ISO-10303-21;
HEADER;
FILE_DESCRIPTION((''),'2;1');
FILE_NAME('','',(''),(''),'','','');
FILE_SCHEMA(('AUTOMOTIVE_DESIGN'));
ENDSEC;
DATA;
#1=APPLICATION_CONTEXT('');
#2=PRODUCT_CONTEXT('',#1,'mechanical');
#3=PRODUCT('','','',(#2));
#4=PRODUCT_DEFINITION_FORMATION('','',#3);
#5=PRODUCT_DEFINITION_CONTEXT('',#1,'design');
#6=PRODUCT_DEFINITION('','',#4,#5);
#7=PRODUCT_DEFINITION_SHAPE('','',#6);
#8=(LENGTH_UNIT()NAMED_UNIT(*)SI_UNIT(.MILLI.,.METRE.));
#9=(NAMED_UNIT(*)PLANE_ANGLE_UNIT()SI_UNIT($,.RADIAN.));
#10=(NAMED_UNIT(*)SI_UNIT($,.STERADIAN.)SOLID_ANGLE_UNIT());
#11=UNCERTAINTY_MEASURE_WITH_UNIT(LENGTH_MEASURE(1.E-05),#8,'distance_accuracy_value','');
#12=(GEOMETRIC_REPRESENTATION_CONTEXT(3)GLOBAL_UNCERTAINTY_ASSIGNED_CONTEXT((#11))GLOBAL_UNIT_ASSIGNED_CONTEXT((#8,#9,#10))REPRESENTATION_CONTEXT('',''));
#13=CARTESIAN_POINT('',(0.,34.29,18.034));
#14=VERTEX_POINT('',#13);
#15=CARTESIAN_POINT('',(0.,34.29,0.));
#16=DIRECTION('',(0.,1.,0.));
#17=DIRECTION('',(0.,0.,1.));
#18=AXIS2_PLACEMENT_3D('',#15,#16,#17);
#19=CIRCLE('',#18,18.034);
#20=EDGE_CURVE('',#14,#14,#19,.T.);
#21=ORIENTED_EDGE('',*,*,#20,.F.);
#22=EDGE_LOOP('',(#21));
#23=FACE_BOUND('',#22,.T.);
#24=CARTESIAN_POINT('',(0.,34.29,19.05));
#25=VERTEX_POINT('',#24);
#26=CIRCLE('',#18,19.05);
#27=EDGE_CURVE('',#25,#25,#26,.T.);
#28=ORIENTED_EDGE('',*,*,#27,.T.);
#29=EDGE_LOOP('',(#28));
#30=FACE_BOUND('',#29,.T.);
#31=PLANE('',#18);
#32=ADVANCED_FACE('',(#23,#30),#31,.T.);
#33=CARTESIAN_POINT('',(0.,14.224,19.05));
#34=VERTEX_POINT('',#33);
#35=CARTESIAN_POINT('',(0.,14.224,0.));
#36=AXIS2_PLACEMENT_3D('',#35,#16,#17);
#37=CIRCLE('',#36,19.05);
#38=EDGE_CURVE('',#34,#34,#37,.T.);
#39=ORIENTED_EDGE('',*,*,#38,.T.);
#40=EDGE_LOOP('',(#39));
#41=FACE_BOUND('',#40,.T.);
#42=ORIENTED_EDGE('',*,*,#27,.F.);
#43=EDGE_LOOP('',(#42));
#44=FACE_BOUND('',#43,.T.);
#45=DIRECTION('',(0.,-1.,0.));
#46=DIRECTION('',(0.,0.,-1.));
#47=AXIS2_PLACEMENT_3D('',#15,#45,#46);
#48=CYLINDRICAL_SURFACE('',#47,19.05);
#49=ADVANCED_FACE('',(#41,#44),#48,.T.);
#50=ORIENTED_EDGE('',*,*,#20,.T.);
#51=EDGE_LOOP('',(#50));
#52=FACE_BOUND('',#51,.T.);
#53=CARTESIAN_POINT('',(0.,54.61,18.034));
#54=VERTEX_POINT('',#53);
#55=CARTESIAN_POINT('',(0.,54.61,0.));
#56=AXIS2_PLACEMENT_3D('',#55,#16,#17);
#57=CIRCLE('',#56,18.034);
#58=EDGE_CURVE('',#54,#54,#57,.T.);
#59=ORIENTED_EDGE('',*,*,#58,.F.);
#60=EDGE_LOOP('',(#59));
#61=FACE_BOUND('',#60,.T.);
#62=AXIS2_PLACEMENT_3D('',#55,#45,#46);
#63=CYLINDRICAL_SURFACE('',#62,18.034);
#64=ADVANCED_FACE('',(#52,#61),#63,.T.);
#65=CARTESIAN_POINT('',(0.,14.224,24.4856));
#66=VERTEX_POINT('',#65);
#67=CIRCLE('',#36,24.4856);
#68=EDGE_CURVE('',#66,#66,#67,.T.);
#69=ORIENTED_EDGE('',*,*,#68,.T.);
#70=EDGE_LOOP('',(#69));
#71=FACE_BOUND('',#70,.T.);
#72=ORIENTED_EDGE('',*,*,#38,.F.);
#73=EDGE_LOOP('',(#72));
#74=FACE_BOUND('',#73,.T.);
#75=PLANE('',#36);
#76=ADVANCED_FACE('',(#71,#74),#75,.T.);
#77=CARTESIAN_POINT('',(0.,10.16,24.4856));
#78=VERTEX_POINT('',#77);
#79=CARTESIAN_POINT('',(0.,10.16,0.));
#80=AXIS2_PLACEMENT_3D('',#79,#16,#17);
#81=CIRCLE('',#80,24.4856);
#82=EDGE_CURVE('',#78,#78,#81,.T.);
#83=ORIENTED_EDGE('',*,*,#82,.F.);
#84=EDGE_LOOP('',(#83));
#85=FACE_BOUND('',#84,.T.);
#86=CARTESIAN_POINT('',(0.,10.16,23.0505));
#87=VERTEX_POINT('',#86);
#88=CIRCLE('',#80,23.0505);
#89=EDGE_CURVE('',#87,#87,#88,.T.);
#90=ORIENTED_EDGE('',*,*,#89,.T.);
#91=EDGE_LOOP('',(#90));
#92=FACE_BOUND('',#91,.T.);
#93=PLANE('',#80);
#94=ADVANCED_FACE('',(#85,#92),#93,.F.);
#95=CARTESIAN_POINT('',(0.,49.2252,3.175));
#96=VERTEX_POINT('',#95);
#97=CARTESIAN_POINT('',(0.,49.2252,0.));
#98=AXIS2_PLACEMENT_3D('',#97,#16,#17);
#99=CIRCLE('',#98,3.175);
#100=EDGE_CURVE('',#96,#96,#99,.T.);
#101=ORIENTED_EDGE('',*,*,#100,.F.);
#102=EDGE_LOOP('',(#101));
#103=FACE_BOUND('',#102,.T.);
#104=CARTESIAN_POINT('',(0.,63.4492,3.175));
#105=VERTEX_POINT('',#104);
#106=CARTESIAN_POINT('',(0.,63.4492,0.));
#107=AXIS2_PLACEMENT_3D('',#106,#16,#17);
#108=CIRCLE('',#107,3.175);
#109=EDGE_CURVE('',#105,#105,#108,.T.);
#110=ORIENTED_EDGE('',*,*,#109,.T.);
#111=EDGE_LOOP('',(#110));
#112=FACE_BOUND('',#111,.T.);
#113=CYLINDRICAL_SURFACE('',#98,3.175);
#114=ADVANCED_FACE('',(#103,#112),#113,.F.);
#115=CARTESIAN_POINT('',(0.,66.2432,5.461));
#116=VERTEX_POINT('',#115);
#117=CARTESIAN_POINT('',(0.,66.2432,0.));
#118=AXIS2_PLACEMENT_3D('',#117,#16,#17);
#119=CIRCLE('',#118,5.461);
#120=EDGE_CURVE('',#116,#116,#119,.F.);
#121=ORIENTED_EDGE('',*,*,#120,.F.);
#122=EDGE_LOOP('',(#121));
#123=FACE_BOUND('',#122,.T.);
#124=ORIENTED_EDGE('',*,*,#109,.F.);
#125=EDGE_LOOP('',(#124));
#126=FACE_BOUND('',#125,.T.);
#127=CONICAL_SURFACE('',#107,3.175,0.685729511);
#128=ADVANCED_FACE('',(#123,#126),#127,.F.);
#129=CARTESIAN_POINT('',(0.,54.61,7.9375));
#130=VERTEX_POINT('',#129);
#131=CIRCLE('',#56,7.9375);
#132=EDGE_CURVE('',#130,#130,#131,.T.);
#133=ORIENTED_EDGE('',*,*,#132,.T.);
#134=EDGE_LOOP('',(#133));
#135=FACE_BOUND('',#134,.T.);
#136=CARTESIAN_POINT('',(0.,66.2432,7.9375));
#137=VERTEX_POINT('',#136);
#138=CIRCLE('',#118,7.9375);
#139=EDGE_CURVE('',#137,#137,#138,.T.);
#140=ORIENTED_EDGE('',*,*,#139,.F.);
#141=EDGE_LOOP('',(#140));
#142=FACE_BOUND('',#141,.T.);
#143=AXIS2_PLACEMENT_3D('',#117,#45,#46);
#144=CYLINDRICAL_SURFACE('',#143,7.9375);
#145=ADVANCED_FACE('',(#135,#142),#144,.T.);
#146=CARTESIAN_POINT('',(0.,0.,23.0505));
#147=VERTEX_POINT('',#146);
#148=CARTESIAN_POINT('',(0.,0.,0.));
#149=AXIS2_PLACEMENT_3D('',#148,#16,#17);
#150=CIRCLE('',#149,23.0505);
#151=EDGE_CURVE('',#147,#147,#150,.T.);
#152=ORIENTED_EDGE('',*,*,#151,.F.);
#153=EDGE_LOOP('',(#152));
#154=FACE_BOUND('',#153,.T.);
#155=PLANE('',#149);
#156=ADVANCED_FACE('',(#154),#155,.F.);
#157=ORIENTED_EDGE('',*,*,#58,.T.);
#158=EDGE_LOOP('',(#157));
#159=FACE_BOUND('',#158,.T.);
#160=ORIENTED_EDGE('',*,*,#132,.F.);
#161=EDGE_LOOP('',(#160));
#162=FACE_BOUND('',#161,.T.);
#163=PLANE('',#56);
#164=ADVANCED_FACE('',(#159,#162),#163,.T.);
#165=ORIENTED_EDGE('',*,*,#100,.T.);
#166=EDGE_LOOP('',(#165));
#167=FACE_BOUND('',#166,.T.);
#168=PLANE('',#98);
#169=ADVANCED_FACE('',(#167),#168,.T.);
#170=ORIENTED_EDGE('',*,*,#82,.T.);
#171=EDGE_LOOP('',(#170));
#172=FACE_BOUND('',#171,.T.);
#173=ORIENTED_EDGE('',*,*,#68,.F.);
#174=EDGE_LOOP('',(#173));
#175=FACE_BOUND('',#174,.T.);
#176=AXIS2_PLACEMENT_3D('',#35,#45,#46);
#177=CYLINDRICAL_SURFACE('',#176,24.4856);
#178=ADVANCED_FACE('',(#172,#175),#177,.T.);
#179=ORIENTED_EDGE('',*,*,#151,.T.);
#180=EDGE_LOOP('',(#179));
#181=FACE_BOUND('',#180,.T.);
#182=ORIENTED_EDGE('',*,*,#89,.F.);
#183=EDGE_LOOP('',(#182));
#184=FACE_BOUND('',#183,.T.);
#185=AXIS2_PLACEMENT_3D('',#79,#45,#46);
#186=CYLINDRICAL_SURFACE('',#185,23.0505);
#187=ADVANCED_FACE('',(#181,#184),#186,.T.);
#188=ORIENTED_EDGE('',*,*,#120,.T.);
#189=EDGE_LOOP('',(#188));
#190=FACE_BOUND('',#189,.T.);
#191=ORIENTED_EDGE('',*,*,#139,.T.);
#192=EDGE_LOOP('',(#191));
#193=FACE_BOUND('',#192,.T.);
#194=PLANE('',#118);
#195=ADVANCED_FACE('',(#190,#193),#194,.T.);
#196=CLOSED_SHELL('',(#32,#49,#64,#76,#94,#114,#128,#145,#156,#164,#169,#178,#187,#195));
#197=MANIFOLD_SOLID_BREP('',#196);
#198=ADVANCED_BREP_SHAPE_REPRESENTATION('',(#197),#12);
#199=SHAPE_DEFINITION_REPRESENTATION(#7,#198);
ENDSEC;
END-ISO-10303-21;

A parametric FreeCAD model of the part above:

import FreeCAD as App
import Part
import Sketcher
from FreeCAD import Vector
Q = App.Units.Quantity


def edges_at(feature, points):
    """Names of the edges that pass closest to the given points."""
    edges = feature.Shape.Edges
    near = lambda p: min(range(len(edges)), key=lambda i: edges[i].distToShape(Part.Vertex(*p))[0])
    return sorted({f"Edge{near(p) + 1}" for p in points})

doc = App.newDocument("Part")
body = doc.addObject("PartDesign::Body", "Body")

sketch1 = doc.addObject("Sketcher::SketchObject", "Sketch")
body.addObject(sketch1)
sketch1.AttachmentSupport = (doc.XZ_Plane, [""])
sketch1.MapMode = "FlatFace"
sketch1.addGeometry(Part.Circle(Vector(0, 0, 0), Vector(0, 0, 1), 23.0505), False)
sketch1.addConstraint(Sketcher.Constraint("Coincident", 0, 3, -1, 1))
sketch1.addConstraint(Sketcher.Constraint("Diameter", 0, Q("1.815 in")))
pad1 = doc.addObject("PartDesign::Pad", "Pad")
body.addObject(pad1)
pad1.Profile = sketch1
pad1.Length = Q("0.4 in")
pad1.Reversed = True

sketch2 = doc.addObject("Sketcher::SketchObject", "Sketch001")
body.addObject(sketch2)
sketch2.AttachmentSupport = (doc.XZ_Plane, [""])
sketch2.MapMode = "FlatFace"
sketch2.AttachmentOffset = App.Placement(Vector(0, 0, -0.4 * 25.4), App.Rotation())
sketch2.addGeometry(Part.Circle(Vector(0, 0, 0), Vector(0, 0, 1), 24.4856), False)
sketch2.addConstraint(Sketcher.Constraint("Coincident", 0, 3, -1, 1))
sketch2.addConstraint(Sketcher.Constraint("Diameter", 0, Q("1.928 in")))
pad2 = doc.addObject("PartDesign::Pad", "Pad001")
body.addObject(pad2)
pad2.Profile = sketch2
pad2.Length = Q("0.16 in")
pad2.Reversed = True

sketch3 = doc.addObject("Sketcher::SketchObject", "Sketch002")
body.addObject(sketch3)
sketch3.AttachmentSupport = (doc.XZ_Plane, [""])
sketch3.MapMode = "FlatFace"
sketch3.AttachmentOffset = App.Placement(Vector(0, 0, -0.56 * 25.4), App.Rotation())
sketch3.addGeometry(Part.Circle(Vector(0, 0, 0), Vector(0, 0, 1), 19.05), False)
sketch3.addConstraint(Sketcher.Constraint("Coincident", 0, 3, -1, 1))
sketch3.addConstraint(Sketcher.Constraint("Diameter", 0, Q("1.5 in")))
pad3 = doc.addObject("PartDesign::Pad", "Pad002")
body.addObject(pad3)
pad3.Profile = sketch3
pad3.Length = Q("0.79 in")
pad3.Reversed = True

sketch4 = doc.addObject("Sketcher::SketchObject", "Sketch003")
body.addObject(sketch4)
sketch4.AttachmentSupport = (doc.XZ_Plane, [""])
sketch4.MapMode = "FlatFace"
sketch4.AttachmentOffset = App.Placement(Vector(0, 0, -1.35 * 25.4), App.Rotation())
sketch4.addGeometry(Part.Circle(Vector(0, 0, 0), Vector(0, 0, 1), 18.034), False)
sketch4.addConstraint(Sketcher.Constraint("Coincident", 0, 3, -1, 1))
sketch4.addConstraint(Sketcher.Constraint("Diameter", 0, Q("1.42 in")))
pad4 = doc.addObject("PartDesign::Pad", "Pad003")
body.addObject(pad4)
pad4.Profile = sketch4
pad4.Length = Q("0.8 in")
pad4.Reversed = True

sketch5 = doc.addObject("Sketcher::SketchObject", "Sketch004")
body.addObject(sketch5)
sketch5.AttachmentSupport = (doc.XZ_Plane, [""])
sketch5.MapMode = "FlatFace"
sketch5.AttachmentOffset = App.Placement(Vector(0, 0, -2.15 * 25.4), App.Rotation())
sketch5.addGeometry(Part.Circle(Vector(0, 0, 0), Vector(0, 0, 1), 7.9375), False)
sketch5.addConstraint(Sketcher.Constraint("Coincident", 0, 3, -1, 1))
sketch5.addConstraint(Sketcher.Constraint("Diameter", 0, Q("0.625 in")))
pad5 = doc.addObject("PartDesign::Pad", "Pad004")
body.addObject(pad5)
pad5.Profile = sketch5
pad5.Length = Q("0.458 in")
pad5.Reversed = True

sketch6 = doc.addObject("Sketcher::SketchObject", "Sketch005")
body.addObject(sketch6)
sketch6.AttachmentSupport = (doc.XZ_Plane, [""])
sketch6.MapMode = "FlatFace"
sketch6.AttachmentOffset = App.Placement(Vector(0, 0, -2.608 * 25.4), App.Rotation())
sketch6.addGeometry(Part.Circle(Vector(0, 0, 0), Vector(0, 0, 1), 3.175), False)
sketch6.addConstraint(Sketcher.Constraint("Coincident", 0, 3, -1, 1))
sketch6.addConstraint(Sketcher.Constraint("Diameter", 0, Q("0.25 in")))
pocket1 = doc.addObject("PartDesign::Pocket", "Pocket")
body.addObject(pocket1)
pocket1.Profile = sketch6
pocket1.Length = Q("0.67 in")
pocket1.Reversed = True
doc.recompute()

chamfer = doc.addObject("PartDesign::Chamfer", "Chamfer")
body.addObject(chamfer)
chamfer.Base = (pocket1, edges_at(pocket1, [(-3.175, 66.243, 0)]))
chamfer.ChamferType = "Two distances"
chamfer.Size = Q("0.09 in")
chamfer.Size2 = Q("0.11 in")

doc.recompute()
